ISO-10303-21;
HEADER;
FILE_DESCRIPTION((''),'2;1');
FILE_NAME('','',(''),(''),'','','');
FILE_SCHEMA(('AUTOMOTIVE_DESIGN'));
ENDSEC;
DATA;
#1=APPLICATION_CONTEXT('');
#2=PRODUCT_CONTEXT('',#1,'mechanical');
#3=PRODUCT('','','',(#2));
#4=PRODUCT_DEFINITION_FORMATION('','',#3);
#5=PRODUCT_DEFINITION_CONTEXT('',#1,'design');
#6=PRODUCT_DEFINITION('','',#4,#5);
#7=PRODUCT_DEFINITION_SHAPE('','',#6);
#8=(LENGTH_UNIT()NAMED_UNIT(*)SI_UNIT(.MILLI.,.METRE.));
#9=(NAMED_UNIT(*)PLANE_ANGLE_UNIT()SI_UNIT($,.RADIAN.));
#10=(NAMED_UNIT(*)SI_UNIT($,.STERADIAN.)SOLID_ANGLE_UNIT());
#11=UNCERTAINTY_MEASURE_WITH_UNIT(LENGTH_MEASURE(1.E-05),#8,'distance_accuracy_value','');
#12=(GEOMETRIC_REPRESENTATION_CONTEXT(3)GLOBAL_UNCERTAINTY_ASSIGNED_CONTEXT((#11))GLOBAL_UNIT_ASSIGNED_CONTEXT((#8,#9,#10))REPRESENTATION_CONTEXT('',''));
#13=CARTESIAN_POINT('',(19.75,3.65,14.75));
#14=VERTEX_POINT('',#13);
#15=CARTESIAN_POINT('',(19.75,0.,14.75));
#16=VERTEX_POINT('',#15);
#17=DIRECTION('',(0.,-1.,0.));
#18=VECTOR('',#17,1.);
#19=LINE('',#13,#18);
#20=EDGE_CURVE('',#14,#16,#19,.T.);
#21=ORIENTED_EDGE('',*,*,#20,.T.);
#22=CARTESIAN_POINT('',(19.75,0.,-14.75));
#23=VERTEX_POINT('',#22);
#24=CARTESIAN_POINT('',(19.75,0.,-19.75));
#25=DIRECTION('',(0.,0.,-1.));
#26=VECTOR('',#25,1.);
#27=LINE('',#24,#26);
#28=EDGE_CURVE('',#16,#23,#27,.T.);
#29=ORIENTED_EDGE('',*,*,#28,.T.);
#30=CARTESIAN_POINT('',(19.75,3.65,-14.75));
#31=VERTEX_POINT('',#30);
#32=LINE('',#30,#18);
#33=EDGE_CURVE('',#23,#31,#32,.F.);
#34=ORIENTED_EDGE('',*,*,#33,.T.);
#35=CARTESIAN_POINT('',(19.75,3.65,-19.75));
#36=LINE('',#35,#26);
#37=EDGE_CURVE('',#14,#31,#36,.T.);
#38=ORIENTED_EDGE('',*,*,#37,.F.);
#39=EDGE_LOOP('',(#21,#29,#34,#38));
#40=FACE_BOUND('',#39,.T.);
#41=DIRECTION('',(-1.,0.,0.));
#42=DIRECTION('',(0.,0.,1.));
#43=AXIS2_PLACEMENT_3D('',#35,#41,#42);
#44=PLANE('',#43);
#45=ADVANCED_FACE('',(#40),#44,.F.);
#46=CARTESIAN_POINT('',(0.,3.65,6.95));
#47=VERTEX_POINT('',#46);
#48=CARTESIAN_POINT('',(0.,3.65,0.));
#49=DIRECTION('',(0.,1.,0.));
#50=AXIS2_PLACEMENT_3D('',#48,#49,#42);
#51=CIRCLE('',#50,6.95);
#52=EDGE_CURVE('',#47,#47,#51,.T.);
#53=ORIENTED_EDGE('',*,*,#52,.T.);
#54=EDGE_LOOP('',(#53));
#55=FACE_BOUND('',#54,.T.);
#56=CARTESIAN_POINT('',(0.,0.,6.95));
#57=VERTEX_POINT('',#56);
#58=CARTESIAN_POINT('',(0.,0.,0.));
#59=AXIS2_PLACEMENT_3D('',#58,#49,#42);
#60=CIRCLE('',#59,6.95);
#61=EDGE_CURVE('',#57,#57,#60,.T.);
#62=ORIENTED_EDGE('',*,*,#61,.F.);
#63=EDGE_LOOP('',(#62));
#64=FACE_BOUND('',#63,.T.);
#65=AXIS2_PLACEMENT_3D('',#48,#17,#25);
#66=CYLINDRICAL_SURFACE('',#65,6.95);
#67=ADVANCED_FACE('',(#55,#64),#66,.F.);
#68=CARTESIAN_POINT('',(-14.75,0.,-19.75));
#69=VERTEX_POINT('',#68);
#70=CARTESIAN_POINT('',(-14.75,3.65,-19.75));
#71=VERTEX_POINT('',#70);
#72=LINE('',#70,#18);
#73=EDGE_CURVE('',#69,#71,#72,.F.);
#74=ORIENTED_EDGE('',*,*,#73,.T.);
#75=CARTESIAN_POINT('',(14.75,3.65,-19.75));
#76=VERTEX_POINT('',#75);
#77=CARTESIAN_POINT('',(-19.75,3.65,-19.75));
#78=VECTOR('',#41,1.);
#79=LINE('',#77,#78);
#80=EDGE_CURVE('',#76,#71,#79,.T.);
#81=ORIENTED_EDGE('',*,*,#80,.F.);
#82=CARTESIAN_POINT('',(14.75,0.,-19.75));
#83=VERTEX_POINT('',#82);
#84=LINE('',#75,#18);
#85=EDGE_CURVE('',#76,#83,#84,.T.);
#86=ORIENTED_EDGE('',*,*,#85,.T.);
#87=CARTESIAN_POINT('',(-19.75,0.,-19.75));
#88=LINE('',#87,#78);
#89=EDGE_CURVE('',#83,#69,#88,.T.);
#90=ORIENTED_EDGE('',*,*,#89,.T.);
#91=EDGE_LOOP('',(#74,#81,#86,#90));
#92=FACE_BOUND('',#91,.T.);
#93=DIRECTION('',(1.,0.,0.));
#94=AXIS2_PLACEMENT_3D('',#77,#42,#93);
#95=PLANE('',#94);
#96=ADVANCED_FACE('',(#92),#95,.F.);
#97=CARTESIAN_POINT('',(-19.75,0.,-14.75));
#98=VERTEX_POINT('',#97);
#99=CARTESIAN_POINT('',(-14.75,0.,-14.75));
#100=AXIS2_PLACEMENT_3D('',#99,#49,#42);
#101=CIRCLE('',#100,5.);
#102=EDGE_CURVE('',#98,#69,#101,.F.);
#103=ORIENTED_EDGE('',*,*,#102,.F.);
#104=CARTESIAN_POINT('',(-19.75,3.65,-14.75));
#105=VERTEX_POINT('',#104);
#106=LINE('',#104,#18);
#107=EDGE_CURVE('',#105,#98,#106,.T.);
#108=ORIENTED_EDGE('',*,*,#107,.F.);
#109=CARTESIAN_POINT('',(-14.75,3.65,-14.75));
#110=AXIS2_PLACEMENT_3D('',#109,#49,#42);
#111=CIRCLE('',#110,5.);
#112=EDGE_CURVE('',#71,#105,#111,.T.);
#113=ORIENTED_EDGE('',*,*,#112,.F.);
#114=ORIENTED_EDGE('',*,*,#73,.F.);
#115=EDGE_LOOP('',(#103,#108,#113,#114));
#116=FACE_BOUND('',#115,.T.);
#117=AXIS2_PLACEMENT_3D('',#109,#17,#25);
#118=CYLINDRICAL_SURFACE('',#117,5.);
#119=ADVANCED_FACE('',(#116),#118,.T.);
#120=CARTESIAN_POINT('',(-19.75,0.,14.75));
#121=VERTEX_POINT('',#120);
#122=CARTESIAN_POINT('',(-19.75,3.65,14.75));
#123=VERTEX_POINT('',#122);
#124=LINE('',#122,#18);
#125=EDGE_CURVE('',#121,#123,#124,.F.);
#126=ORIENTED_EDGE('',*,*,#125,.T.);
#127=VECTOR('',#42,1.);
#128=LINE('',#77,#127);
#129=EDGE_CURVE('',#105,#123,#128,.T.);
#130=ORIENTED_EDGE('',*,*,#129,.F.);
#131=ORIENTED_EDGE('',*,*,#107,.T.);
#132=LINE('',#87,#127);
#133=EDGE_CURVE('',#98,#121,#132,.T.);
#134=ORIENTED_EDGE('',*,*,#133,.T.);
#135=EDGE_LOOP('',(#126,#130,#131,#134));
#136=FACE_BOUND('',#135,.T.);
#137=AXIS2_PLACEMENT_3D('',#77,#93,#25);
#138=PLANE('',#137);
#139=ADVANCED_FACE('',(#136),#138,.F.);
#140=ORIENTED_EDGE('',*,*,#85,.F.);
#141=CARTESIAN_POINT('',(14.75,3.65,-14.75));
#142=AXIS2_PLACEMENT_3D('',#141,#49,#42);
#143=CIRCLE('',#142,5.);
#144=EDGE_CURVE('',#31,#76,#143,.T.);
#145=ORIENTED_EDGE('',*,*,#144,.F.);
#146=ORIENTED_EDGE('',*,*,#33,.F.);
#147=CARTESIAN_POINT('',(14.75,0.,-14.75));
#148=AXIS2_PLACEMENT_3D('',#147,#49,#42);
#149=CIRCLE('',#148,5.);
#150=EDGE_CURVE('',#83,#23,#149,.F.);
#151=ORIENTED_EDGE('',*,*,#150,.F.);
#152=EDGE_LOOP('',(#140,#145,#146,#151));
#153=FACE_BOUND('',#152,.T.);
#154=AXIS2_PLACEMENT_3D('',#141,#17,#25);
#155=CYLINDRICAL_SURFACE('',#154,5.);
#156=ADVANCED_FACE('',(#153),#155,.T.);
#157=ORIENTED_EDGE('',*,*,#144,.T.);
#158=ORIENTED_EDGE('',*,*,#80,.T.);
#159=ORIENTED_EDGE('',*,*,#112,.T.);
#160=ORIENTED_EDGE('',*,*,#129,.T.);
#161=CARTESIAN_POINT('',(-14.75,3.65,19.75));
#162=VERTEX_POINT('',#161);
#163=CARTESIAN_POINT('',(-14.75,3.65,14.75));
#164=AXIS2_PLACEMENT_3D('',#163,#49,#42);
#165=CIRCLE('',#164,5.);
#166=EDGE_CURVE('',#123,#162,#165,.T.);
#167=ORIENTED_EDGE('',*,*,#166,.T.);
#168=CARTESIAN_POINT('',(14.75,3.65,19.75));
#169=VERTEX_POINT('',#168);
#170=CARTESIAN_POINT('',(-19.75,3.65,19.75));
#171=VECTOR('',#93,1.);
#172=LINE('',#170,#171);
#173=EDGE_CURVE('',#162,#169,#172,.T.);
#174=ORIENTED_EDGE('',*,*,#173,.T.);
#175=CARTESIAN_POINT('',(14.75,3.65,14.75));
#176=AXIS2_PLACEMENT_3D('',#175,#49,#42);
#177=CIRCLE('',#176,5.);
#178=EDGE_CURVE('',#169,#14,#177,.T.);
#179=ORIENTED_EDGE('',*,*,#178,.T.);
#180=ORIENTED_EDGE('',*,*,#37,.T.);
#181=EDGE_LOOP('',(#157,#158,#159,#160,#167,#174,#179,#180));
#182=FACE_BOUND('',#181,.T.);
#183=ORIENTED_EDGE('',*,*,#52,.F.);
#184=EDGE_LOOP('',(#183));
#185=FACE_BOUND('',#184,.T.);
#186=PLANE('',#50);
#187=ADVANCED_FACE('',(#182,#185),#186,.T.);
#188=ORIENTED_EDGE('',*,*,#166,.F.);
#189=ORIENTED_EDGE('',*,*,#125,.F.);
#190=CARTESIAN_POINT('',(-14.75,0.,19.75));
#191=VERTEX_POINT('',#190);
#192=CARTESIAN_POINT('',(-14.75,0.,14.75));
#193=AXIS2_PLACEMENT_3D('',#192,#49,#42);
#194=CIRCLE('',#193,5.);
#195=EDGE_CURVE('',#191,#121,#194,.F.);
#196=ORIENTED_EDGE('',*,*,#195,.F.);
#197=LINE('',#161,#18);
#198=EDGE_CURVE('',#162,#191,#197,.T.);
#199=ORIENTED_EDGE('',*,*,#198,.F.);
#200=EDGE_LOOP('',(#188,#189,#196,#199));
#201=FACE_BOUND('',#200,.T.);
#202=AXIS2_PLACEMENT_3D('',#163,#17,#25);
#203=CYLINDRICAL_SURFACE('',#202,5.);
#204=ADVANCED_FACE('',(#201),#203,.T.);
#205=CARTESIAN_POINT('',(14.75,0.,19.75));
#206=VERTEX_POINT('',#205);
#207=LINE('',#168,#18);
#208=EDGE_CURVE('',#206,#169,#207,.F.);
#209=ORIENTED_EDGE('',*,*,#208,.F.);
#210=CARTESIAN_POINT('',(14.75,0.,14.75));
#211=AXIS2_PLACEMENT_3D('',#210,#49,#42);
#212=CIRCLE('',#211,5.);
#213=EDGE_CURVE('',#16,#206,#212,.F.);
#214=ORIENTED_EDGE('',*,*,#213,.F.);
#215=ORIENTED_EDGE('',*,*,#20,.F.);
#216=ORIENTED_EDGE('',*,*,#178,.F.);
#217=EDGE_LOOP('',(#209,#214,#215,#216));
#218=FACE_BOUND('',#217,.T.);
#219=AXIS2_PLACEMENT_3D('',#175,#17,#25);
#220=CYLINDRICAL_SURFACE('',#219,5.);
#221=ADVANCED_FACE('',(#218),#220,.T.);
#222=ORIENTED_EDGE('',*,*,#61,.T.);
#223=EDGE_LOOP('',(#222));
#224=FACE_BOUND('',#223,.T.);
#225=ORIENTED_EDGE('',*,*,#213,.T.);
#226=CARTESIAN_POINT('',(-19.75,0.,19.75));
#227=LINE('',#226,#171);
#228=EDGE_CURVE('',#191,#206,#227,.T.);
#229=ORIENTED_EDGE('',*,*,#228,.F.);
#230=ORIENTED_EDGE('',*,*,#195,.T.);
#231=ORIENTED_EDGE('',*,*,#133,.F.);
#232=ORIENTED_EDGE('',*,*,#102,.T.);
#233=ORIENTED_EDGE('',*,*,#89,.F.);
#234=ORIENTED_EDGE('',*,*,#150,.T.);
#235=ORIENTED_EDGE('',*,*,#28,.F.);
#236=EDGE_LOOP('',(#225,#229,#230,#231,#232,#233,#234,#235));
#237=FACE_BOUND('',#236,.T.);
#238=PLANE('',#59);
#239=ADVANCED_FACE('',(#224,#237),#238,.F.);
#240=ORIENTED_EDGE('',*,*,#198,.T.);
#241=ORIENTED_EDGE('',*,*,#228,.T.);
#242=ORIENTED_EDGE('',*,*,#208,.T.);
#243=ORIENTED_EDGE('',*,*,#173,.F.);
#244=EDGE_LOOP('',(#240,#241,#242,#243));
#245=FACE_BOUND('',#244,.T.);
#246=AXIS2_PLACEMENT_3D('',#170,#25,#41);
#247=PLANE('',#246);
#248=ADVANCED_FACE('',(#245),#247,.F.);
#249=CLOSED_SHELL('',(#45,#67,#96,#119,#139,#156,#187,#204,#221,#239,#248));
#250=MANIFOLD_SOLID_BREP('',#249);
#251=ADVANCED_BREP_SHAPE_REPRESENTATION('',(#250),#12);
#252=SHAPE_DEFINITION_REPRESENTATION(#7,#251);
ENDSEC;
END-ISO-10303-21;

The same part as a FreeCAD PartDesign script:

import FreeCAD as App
import Part
import Sketcher
Q = App.Units.Quantity


def edges_at(feature, points):
    """Names of the edges that pass closest to the given points."""
    edges = feature.Shape.Edges
    near = lambda p: min(range(len(edges)), key=lambda i: edges[i].distToShape(Part.Vertex(*p))[0])
    return sorted({f"Edge{near(p) + 1}" for p in points})

doc = App.newDocument("Part")
body = doc.addObject("PartDesign::Body", "Body")

sketch1 = body.newObject("Sketcher::SketchObject", "Sketch")
sketch1.AttachmentSupport = (doc.getObject("XZ_Plane"), [""])
sketch1.MapMode = "FlatFace"
sketch1.addGeometry(Part.LineSegment(App.Vector(-20, -20, 0), App.Vector(-20, 20, 0)), False)
sketch1.addGeometry(Part.LineSegment(App.Vector(-20, 20, 0), App.Vector(20, 20, 0)), False)
sketch1.addGeometry(Part.LineSegment(App.Vector(20, 20, 0), App.Vector(20, -20, 0)), False)
sketch1.addGeometry(Part.LineSegment(App.Vector(20, -20, 0), App.Vector(-20, -20, 0)), False)
sketch1.addGeometry(Part.Circle(App.Vector(0, 0, 0), App.Vector(0, 0, 1), 7), False)
sketch1.addConstraint(Sketcher.Constraint("Coincident", 0, 2, 1, 1))
sketch1.addConstraint(Sketcher.Constraint("Coincident", 1, 2, 2, 1))
sketch1.addConstraint(Sketcher.Constraint("Coincident", 2, 2, 3, 1))
sketch1.addConstraint(Sketcher.Constraint("Coincident", 3, 2, 0, 1))
sketch1.addConstraint(Sketcher.Constraint("Vertical", 0))
sketch1.addConstraint(Sketcher.Constraint("Horizontal", 1))
sketch1.addConstraint(Sketcher.Constraint("Vertical", 2))
sketch1.addConstraint(Sketcher.Constraint("Horizontal", 3))
sketch1.addConstraint(Sketcher.Constraint("Coincident", 4, 3, -1, 1))
sketch1.addConstraint(Sketcher.Constraint("Symmetric", 0, 2, 2, 2, -1, 1))
sketch1.addConstraint(Sketcher.Constraint("Equal", 3, 0))
sketch1.addConstraint(Sketcher.Constraint("Diameter", 4, Q("13.9 mm")))
sketch1.addConstraint(Sketcher.Constraint("DistanceX", 1, 1, 1, 2, Q("39.5 mm")))
pad1 = body.newObject("PartDesign::Pad", "Pad")
pad1.Profile = sketch1
pad1.Length = 3.65
pad1.Reversed = True
doc.recompute()

fillet = body.newObject("PartDesign::Fillet", "Fillet")
fillet.Base = (pad1, edges_at(pad1, [
    (-19.75, 1.825, -19.75),
    (19.75, 1.825, -19.75),
    (19.75, 1.825, 19.75),
    (-19.75, 1.825, 19.75),
]))
fillet.Radius = 5

doc.recompute()
